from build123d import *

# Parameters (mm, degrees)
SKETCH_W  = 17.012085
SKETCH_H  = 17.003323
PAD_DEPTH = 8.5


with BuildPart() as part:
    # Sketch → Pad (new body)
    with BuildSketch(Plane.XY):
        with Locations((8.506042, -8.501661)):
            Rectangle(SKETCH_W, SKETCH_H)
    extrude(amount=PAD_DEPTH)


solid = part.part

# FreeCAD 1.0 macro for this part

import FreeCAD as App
import Part
import Sketcher
from FreeCAD import Vector

doc = App.newDocument("Part")
params = doc.addObject("Spreadsheet::Sheet", "Params")
for row, (alias, value) in enumerate([
    ("pad1_length", "8.5 mm"),
], start=1):
    params.set(f"A{row}", alias)
    params.set(f"B{row}", "=" + value)
    params.setAlias(f"B{row}", alias)

body = doc.addObject("PartDesign::Body", "Body")

sketch1 = doc.addObject("Sketcher::SketchObject", "Sketch")
body.addObject(sketch1)
sketch1.AttachmentSupport = (doc.XY_Plane, [""])
sketch1.MapMode = "FlatFace"
sketch1.addGeometry([
    Part.LineSegment(Vector(0, 0, 0), Vector(0, -17, 0)),
    Part.LineSegment(Vector(0, -17, 0), Vector(17, -17, 0)),
    Part.LineSegment(Vector(17, -17, 0), Vector(17, 0, 0)),
    Part.LineSegment(Vector(17, 0, 0), Vector(0, 0, 0)),
], False)
sketch1.addConstraint([
    Sketcher.Constraint("Coincident", 0, 2, 1, 1),
    Sketcher.Constraint("Coincident", 1, 2, 2, 1),
    Sketcher.Constraint("Coincident", 2, 2, 3, 1),
    Sketcher.Constraint("Coincident", 3, 2, 0, 1),
    Sketcher.Constraint("Vertical", 0),
    Sketcher.Constraint("Horizontal", 1),
    Sketcher.Constraint("Vertical", 2),
    Sketcher.Constraint("Horizontal", 3),
    Sketcher.Constraint("Coincident", 3, 2, -1, 1),
    Sketcher.Constraint("DistanceX", 1, 1, 1, 2, 17.012085),
    Sketcher.Constraint("DistanceY", 0, 2, 0, 1, 17.003323),
])
pad1 = doc.addObject("PartDesign::Pad", "Pad")
body.addObject(pad1)
pad1.Profile = sketch1
pad1.setExpression("Length", "Params.pad1_length")

doc.recompute()
